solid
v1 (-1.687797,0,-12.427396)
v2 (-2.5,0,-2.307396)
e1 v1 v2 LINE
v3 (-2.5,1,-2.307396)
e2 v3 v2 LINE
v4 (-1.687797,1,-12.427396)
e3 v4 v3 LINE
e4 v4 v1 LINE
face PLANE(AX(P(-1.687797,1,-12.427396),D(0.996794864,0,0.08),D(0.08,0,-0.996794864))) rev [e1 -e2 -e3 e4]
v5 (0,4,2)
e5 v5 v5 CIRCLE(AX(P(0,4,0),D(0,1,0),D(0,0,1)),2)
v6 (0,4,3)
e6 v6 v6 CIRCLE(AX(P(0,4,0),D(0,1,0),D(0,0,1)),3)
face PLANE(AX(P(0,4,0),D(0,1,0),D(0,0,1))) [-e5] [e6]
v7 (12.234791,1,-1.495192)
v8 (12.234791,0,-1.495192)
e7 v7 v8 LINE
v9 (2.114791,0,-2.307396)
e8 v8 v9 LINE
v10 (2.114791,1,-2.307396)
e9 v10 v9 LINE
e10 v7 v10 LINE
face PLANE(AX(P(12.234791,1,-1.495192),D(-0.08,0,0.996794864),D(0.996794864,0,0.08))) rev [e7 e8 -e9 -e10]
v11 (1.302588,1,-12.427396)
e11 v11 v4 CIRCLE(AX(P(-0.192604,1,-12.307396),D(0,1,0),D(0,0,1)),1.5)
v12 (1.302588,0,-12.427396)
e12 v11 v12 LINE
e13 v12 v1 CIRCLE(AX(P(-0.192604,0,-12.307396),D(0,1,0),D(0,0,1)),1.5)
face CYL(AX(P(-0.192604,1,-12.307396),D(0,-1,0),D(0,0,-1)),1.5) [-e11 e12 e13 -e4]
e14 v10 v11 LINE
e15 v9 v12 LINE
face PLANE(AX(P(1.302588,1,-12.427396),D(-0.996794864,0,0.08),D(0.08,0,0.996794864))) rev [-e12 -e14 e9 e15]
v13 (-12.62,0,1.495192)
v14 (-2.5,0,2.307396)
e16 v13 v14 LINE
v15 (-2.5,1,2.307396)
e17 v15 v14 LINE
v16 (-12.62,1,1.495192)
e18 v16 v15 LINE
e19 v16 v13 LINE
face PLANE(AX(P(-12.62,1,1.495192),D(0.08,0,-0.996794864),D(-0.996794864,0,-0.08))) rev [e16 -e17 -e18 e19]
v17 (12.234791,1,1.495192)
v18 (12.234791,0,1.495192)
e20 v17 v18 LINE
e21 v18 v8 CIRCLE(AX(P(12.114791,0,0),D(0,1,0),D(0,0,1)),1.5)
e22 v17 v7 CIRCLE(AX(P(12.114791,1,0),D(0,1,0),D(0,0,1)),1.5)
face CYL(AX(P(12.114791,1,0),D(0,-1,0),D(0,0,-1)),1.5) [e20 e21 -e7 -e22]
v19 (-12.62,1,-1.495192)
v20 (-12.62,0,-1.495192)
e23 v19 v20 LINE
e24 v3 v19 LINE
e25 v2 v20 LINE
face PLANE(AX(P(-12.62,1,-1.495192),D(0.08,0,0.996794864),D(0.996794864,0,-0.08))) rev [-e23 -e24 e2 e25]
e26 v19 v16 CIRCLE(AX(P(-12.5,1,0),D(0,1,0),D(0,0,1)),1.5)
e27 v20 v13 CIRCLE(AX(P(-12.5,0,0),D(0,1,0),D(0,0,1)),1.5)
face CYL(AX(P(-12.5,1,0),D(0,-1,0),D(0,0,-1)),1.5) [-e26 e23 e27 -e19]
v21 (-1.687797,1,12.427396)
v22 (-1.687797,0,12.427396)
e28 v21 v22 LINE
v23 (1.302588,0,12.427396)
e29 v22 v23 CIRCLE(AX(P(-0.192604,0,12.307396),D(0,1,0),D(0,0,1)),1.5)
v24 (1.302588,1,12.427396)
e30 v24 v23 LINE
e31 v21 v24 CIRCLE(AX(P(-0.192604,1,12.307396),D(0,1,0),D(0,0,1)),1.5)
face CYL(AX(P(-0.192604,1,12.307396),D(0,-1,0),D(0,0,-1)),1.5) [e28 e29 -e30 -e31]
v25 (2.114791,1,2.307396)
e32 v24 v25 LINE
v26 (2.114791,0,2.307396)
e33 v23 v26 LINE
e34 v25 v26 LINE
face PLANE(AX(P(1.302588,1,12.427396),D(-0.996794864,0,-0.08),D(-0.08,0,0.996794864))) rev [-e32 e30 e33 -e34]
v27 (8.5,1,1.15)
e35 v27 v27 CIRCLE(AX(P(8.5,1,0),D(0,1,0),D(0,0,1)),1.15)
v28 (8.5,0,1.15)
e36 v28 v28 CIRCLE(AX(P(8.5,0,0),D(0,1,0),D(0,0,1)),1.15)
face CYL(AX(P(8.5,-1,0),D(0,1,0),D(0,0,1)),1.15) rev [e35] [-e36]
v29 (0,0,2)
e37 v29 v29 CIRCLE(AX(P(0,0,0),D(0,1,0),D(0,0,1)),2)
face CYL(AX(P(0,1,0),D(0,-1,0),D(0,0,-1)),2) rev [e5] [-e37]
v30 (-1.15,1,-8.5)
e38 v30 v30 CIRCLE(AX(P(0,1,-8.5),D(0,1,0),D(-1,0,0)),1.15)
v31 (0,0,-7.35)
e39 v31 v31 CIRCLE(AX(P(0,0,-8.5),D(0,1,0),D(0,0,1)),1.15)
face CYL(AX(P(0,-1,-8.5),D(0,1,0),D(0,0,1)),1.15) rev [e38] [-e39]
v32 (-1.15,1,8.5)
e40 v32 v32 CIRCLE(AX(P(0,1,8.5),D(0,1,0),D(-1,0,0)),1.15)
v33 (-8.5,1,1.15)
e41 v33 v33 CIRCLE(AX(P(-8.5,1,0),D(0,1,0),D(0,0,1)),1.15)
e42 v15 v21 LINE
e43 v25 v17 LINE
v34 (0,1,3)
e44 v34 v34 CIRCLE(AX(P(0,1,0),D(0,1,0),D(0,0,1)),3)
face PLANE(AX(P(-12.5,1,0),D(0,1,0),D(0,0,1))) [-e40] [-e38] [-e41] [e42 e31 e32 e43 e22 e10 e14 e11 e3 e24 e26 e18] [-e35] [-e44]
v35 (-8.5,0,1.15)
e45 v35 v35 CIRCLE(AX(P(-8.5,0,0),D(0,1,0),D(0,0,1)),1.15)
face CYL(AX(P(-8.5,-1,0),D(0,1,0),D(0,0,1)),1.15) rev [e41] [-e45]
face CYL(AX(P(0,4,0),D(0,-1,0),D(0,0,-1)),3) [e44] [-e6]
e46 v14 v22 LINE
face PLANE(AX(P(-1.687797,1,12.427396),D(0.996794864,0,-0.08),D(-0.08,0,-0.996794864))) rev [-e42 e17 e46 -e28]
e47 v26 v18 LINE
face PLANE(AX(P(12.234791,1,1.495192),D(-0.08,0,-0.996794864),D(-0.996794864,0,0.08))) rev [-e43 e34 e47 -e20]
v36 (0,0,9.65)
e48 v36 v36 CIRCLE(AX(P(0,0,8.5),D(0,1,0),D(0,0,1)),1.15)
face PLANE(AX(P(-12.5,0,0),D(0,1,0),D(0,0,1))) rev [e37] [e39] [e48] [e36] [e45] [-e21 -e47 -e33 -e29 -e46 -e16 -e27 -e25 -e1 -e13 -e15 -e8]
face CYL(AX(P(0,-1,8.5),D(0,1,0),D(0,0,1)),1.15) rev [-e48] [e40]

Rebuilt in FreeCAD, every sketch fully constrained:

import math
import FreeCAD as App
import Part
import Sketcher
from FreeCAD import Vector
Q = App.Units.Quantity

doc = App.newDocument("Part")
body = doc.addObject("PartDesign::Body", "Body")

sketch1 = body.newObject("Sketcher::SketchObject", "Sketch")
sketch1.AttachmentSupport = (doc.getObject("XZ_Plane"), [""])
sketch1.MapMode = "FlatFace"
sketch1.addGeometry([
    Part.LineSegment(Vector(-2.5, -2.3, 0), Vector(-12.6, -1.5, 0)),
    Part.ArcOfCircle(Part.Circle(Vector(-12.5, 0, 0), Vector(0, 0, 1), 1.5), math.radians(95), math.radians(265)),
    Part.LineSegment(Vector(-12.6, 1.5, 0), Vector(-2.5, 2.3, 0)),
    Part.LineSegment(Vector(-2.5, 2.3, 0), Vector(-1.7, 12.4, 0)),
    Part.ArcOfCircle(Part.Circle(Vector(-0.2, 12.3, 0), Vector(0, 0, 1), 1.5), math.radians(5), math.radians(175)),
    Part.LineSegment(Vector(1.3, 12.4, 0), Vector(2.1, 2.3, 0)),
    Part.LineSegment(Vector(2.1, 2.3, 0), Vector(12.2, 1.5, 0)),
    Part.ArcOfCircle(Part.Circle(Vector(12.1, 0, 0), Vector(0, 0, 1), 1.5), math.radians(-85), math.radians(85)),
    Part.LineSegment(Vector(12.2, -1.5, 0), Vector(2.1, -2.3, 0)),
    Part.LineSegment(Vector(2.1, -2.3, 0), Vector(1.3, -12.4, 0)),
    Part.ArcOfCircle(Part.Circle(Vector(-0.2, -12.3, 0), Vector(0, 0, 1), 1.5), math.radians(-175), math.radians(-5)),
    Part.LineSegment(Vector(-1.7, -12.4, 0), Vector(-2.5, -2.3, 0)),
    Part.Circle(Vector(0, 0, 0), Vector(0, 0, 1), 2),
], False)
sketch1.addConstraint([
    Sketcher.Constraint("Tangent", 0, 2, 1, 2),
    Sketcher.Constraint("Tangent", 1, 1, 2, 1),
    Sketcher.Constraint("Coincident", 2, 2, 3, 1),
    Sketcher.Constraint("Tangent", 3, 2, 4, 2),
    Sketcher.Constraint("Tangent", 4, 1, 5, 1),
    Sketcher.Constraint("Coincident", 5, 2, 6, 1),
    Sketcher.Constraint("Tangent", 6, 2, 7, 2),
    Sketcher.Constraint("Tangent", 7, 1, 8, 1),
    Sketcher.Constraint("Coincident", 8, 2, 9, 1),
    Sketcher.Constraint("Tangent", 9, 2, 10, 2),
    Sketcher.Constraint("Tangent", 10, 1, 11, 1),
    Sketcher.Constraint("Coincident", 11, 2, 0, 1),
    Sketcher.Constraint("Coincident", 12, 3, -1, 1),
    Sketcher.Constraint("Equal", 1, 4),
    Sketcher.Constraint("Equal", 4, 7),
    Sketcher.Constraint("Equal", 7, 10),
    Sketcher.Constraint("Symmetric", 4, 3, 10, 3, -1),
    Sketcher.Constraint("Symmetric", 0, 2, 1, 1, -1),
    Sketcher.Constraint("Symmetric", 6, 2, 7, 1, -1),
    Sketcher.Constraint("Perpendicular", 0, 3),
    Sketcher.Constraint("Perpendicular", 2, 5),
    Sketcher.Constraint("Perpendicular", 3, 6),
    Sketcher.Constraint("Perpendicular", 6, 9),
    Sketcher.Constraint("Perpendicular", 8, 11),
    Sketcher.Constraint("Horizontal", 2, 2, 5, 2),
    Sketcher.Constraint("Equal", 2, 3),
    Sketcher.Constraint("Diameter", 12, Q("4 mm")),
    Sketcher.Constraint("Radius", 1, Q("1.5 mm")),
    Sketcher.Constraint("DistanceX", 1, 3, 2, 2, Q("10 mm")),
    Sketcher.Constraint("DistanceX", 1, 3, -1, 1, Q("12.5 mm")),
    Sketcher.Constraint("DistanceX", 0, 2, -1, 1, Q("12.62 mm")),
])
pad1 = body.newObject("PartDesign::Pad", "Pad")
pad1.Profile = sketch1
pad1.Length = 1
pad1.Reversed = True

sketch2 = body.newObject("Sketcher::SketchObject", "Sketch001")
sketch2.AttachmentSupport = (doc.getObject("XZ_Plane"), [""])
sketch2.MapMode = "FlatFace"
sketch2.AttachmentOffset = App.Placement(Vector(0, 0, -1), App.Rotation())
sketch2.addGeometry([
    Part.Circle(Vector(-8.5, 0, 0), Vector(0, 0, 1), 1.1),
    Part.Circle(Vector(8.5, 0, 0), Vector(0, 0, 1), 1.1),
], False)
sketch2.addConstraint([
    Sketcher.Constraint("Equal", 0, 1),
    Sketcher.Constraint("Symmetric", 0, 3, 1, 3, -1, 1),
    Sketcher.Constraint("PointOnObject", 0, 3, -1),
    Sketcher.Constraint("Diameter", 0, Q("2.3 mm")),
    Sketcher.Constraint("DistanceX", 0, 3, 1, 3, Q("17 mm")),
])
pocket1 = body.newObject("PartDesign::Pocket", "Pocket")
pocket1.Profile = sketch2
pocket1.Length = 2
pocket1.Reversed = True

sketch3 = body.newObject("Sketcher::SketchObject", "Sketch002")
sketch3.AttachmentSupport = (doc.getObject("XZ_Plane"), [""])
sketch3.MapMode = "FlatFace"
sketch3.AttachmentOffset = App.Placement(Vector(0, 0, -1), App.Rotation())
sketch3.addGeometry([
    Part.Circle(Vector(0, 0, 0), Vector(0, 0, 1), 3),
    Part.Circle(Vector(0, 0, 0), Vector(0, 0, 1), 2),
], False)
sketch3.addConstraint([
    Sketcher.Constraint("Coincident", 0, 3, -1, 1),
    Sketcher.Constraint("Coincident", 1, 3, -1, 1),
    Sketcher.Constraint("Diameter", 0, Q("6 mm")),
    Sketcher.Constraint("Diameter", 1, Q("4 mm")),
])
pad2 = body.newObject("PartDesign::Pad", "Pad001")
pad2.Profile = sketch3
pad2.Length = 3
pad2.Reversed = True
doc.recompute()

polarpattern = body.newObject("PartDesign::PolarPattern", "PolarPattern")
polarpattern.Originals = [pocket1]
polarpattern.Axis = (doc.getObject("Y_Axis"), [""])
polarpattern.Angle = 360
polarpattern.Occurrences = 4
body.Tip = polarpattern

doc.recompute()
